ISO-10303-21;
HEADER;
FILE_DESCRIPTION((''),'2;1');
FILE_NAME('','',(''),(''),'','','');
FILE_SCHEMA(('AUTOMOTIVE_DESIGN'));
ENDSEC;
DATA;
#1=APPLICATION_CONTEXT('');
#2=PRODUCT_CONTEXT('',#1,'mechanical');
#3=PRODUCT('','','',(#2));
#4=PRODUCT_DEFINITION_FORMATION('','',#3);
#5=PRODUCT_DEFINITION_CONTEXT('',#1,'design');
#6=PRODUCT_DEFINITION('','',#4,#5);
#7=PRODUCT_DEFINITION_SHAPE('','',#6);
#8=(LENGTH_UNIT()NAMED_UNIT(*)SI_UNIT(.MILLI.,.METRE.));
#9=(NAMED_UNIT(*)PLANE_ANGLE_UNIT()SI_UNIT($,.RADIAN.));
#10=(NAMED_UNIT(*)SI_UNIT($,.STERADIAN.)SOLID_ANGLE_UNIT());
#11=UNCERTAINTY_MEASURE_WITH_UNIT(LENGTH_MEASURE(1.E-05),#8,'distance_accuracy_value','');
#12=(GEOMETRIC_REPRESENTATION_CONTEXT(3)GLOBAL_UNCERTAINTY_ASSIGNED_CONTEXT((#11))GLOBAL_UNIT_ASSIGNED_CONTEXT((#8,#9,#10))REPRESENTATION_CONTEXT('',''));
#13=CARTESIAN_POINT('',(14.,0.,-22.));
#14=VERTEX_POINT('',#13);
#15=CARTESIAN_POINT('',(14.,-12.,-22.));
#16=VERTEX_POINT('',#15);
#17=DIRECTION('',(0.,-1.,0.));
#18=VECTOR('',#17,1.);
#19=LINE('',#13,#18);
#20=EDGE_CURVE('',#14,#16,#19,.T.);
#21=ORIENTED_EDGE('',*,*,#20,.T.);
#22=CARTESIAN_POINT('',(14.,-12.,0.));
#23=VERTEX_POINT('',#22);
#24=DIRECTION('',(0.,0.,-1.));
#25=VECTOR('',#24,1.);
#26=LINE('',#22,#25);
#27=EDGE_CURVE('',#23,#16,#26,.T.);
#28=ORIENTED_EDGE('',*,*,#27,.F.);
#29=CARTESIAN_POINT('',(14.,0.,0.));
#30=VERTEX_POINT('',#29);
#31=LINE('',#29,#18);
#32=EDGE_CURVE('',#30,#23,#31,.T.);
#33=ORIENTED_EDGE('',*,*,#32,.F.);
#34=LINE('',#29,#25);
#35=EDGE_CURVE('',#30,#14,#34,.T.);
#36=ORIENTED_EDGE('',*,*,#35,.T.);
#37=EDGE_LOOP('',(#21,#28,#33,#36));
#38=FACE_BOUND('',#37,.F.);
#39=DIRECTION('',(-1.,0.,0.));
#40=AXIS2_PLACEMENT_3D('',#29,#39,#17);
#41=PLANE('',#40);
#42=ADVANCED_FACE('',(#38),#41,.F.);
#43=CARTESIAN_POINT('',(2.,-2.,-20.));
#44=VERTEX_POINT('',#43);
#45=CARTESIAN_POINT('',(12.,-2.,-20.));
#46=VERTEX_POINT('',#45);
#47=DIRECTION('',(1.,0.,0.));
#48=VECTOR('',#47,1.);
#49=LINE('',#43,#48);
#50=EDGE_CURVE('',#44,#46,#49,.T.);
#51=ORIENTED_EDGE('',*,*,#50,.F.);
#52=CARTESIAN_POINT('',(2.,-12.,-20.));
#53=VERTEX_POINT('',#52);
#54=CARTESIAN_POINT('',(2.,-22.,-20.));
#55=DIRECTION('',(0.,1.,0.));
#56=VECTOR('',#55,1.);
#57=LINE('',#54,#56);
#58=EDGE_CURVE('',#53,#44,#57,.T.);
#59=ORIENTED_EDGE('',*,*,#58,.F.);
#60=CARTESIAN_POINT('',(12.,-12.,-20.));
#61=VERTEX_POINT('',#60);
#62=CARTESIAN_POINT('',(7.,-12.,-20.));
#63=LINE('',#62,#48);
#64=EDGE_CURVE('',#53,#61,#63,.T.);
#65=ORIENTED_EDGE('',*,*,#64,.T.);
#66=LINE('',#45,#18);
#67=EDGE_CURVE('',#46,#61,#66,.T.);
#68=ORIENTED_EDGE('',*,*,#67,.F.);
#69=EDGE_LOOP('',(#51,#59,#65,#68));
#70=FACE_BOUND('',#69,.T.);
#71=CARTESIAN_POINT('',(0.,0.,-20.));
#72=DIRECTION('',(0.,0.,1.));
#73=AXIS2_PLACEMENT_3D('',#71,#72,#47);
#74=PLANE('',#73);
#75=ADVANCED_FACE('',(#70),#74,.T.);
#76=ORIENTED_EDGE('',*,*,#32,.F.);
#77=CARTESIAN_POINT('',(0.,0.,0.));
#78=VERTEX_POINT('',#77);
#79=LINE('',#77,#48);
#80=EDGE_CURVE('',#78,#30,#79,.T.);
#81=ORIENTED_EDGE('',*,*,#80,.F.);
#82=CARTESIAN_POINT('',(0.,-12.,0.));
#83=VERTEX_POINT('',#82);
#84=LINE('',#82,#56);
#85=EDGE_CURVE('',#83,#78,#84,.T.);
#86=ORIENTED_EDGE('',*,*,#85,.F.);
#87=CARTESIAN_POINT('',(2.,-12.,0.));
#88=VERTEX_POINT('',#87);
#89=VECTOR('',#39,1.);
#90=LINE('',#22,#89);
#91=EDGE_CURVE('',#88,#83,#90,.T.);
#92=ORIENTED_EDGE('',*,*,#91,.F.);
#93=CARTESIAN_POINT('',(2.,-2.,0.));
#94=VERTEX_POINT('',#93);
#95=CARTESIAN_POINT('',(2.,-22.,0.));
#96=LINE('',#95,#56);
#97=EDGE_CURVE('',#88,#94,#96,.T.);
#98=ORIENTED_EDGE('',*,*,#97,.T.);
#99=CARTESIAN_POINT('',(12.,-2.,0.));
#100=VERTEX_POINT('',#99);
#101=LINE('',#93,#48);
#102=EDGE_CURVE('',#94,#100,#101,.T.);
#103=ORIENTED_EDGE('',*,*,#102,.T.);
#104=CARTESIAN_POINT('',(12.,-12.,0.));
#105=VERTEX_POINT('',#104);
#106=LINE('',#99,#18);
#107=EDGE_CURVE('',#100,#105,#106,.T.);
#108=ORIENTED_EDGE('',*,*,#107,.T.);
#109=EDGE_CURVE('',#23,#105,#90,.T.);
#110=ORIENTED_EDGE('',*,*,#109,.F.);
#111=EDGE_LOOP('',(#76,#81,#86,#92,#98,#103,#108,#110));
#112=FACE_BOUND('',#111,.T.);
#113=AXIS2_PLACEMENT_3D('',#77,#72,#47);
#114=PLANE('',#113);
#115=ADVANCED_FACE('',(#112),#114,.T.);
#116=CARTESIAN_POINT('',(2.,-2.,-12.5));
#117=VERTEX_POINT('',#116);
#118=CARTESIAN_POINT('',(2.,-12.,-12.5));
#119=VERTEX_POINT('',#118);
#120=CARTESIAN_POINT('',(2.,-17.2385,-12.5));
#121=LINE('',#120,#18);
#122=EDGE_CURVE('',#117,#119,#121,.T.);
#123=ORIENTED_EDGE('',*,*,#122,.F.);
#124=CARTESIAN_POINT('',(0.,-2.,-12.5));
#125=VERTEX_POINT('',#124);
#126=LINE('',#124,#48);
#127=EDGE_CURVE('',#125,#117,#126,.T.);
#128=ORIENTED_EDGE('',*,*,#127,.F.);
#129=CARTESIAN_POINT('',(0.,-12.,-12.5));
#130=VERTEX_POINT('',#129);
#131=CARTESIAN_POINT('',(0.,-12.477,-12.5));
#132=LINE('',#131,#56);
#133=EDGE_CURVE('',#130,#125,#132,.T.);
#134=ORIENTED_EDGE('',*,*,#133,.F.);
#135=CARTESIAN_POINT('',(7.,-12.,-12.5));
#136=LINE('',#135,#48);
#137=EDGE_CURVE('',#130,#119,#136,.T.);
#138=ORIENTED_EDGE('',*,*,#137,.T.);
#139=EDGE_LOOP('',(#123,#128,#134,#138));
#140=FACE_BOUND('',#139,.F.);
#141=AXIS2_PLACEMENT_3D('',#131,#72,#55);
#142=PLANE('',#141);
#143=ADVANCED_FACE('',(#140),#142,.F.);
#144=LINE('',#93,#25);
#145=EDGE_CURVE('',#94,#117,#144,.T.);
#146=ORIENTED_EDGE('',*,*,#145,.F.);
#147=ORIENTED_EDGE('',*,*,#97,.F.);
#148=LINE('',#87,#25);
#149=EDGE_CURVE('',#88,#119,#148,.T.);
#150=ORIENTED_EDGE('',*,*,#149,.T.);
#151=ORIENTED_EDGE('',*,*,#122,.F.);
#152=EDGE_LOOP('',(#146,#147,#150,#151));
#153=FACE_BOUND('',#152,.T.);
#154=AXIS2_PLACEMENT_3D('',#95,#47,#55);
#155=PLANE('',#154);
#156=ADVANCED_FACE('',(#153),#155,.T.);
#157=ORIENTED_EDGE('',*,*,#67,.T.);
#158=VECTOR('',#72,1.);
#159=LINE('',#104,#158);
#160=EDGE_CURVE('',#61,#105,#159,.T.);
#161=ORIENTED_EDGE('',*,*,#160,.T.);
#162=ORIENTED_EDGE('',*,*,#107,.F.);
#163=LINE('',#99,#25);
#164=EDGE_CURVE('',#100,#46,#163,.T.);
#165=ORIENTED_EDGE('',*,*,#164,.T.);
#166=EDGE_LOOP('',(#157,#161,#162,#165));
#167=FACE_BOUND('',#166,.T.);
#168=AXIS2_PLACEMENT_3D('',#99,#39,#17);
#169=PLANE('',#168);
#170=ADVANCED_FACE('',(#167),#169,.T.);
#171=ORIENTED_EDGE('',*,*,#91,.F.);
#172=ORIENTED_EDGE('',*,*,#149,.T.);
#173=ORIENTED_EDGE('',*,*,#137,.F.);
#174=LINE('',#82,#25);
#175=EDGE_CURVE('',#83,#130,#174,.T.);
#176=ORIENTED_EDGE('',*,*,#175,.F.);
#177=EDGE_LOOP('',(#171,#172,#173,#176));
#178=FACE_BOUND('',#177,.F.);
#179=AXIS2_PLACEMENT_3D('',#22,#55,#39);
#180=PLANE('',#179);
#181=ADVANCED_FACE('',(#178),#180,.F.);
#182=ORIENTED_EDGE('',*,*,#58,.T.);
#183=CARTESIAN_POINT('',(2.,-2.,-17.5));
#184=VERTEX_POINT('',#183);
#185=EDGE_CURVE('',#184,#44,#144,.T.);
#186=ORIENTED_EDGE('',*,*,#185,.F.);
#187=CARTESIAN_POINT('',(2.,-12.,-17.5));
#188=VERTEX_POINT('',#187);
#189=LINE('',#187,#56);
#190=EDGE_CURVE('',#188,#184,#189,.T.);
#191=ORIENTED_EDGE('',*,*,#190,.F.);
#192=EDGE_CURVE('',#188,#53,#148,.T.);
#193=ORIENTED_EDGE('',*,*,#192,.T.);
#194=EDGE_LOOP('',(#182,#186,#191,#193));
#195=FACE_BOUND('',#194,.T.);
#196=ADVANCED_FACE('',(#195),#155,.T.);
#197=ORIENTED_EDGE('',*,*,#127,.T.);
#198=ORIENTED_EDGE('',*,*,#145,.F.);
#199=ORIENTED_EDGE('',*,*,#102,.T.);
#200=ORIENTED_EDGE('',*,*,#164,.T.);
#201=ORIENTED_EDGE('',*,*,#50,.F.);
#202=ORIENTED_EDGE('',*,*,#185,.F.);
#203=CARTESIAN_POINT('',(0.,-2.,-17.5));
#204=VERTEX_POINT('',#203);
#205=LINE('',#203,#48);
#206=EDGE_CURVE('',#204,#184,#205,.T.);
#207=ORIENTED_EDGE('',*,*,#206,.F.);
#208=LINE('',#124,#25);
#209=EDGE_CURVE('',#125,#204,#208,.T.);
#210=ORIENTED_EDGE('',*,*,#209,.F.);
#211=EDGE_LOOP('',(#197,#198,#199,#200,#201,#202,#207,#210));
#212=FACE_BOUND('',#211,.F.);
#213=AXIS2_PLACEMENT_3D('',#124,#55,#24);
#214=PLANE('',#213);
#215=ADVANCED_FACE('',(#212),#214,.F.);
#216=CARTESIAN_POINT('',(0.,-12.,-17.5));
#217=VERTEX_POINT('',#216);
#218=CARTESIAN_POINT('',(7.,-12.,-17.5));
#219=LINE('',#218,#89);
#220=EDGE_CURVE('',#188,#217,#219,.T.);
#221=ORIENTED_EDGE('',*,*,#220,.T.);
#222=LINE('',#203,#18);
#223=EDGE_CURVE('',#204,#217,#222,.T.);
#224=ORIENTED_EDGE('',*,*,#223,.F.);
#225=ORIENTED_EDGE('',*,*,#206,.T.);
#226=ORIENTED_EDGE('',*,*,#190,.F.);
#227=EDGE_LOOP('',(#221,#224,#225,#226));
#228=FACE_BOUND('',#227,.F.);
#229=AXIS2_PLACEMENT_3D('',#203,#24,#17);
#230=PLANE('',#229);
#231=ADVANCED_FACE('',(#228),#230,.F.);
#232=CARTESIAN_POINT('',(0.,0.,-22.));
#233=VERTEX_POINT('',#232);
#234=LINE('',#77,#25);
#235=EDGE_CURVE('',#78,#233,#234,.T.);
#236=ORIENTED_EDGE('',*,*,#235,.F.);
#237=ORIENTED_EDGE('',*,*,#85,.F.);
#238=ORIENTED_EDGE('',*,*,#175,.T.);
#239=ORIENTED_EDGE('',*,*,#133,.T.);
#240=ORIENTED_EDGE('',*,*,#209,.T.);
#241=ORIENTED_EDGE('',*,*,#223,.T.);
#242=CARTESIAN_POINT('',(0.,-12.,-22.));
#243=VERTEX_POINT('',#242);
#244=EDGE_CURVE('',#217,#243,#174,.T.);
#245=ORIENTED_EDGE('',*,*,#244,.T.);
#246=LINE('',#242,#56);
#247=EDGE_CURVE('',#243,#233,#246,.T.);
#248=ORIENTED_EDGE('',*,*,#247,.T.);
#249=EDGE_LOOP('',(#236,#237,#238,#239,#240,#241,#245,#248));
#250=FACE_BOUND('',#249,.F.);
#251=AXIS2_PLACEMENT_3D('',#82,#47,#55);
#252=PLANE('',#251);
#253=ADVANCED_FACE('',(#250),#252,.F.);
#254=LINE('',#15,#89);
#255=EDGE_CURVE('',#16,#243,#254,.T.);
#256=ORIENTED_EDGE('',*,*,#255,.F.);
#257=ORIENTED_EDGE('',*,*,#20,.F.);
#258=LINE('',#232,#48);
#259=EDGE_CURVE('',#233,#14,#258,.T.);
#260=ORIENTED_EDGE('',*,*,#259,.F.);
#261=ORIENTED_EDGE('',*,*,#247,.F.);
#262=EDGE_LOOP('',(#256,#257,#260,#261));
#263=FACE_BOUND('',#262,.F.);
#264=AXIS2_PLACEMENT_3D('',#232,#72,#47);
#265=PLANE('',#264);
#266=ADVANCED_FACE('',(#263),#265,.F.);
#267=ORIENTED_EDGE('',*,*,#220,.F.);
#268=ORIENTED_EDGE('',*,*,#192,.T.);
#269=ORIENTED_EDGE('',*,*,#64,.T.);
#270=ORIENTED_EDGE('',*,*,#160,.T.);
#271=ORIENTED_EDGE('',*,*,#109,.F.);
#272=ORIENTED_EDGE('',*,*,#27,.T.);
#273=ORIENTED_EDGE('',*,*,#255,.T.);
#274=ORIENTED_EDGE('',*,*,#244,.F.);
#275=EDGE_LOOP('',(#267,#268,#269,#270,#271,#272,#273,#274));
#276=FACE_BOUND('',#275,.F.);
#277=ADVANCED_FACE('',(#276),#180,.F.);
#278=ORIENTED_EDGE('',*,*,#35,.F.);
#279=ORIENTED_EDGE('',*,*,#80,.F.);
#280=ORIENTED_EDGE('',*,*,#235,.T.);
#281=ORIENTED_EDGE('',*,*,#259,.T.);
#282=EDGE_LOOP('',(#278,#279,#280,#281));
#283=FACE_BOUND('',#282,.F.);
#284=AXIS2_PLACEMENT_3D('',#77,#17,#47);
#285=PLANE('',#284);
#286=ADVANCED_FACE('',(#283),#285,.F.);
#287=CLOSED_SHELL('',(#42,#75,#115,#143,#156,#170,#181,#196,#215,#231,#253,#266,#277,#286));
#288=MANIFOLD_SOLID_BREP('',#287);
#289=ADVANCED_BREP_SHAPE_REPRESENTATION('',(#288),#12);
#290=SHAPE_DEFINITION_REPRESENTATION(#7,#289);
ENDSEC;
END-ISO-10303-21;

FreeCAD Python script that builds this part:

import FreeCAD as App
import Part
import Sketcher
Q = App.Units.Quantity


def add_polygon(sketch, points):
    """Adds a closed chain of lines whose ends are joined by coincident constraints."""
    first, n = sketch.GeometryCount, len(points)
    for a, b in zip(points, points[1:] + points[:1]):
        sketch.addGeometry(Part.LineSegment(App.Vector(*a, 0), App.Vector(*b, 0)), False)
    for i in range(n):
        sketch.addConstraint(Sketcher.Constraint("Coincident", first + i, 2, first + (i + 1) % n, 1))

doc = App.newDocument("Part")
params = doc.addObject("Spreadsheet::Sheet", "Params")
for row, (alias, value) in enumerate([
    ("sketch1_width", "14 mm"),
    ("sketch1_height", "12 mm"),
    ("pad1_length", "22 mm"),
    ("sketch2_width", "10 mm"),
    ("sketch2_height", "20 mm"),
    ("pocket1_length", "20 mm"),
    ("sketch3_height", "5 mm"),
    ("pocket2_length", "10 mm"),
], start=1):
    params.set(f"A{row}", alias)
    params.set(f"B{row}", "=" + value)
    params.setAlias(f"B{row}", alias)

body = doc.addObject("PartDesign::Body", "Body")

sketch1 = body.newObject("Sketcher::SketchObject", "Sketch")
sketch1.AttachmentSupport = (doc.getObject("XY_Plane"), [""])
sketch1.MapMode = "FlatFace"
add_polygon(sketch1, [(14, 0), (0, 0), (0, -12), (14, -12)])
sketch1.addConstraint([
    Sketcher.Constraint("Horizontal", 0),
    Sketcher.Constraint("Vertical", 1),
    Sketcher.Constraint("Horizontal", 2),
    Sketcher.Constraint("Vertical", 3),
    Sketcher.Constraint("Coincident", 0, 2, -1, 1),
    Sketcher.Constraint("DistanceX", 0, 2, 0, 1, Q("14 mm")),
    Sketcher.Constraint("DistanceY", 1, 2, 1, 1, Q("12 mm")),
])
sketch1.setExpression("Constraints[9]", "Params.sketch1_width")
sketch1.setExpression("Constraints[10]", "Params.sketch1_height")
pad1 = body.newObject("PartDesign::Pad", "Pad")
pad1.Profile = sketch1
pad1.setExpression("Length", "Params.pad1_length")
pad1.Reversed = True

sketch2 = body.newObject("Sketcher::SketchObject", "Sketch001")
sketch2.AttachmentSupport = (doc.getObject("XY_Plane"), [""])
sketch2.MapMode = "FlatFace"
add_polygon(sketch2, [(12, -2), (2, -2), (2, -22), (12, -22)])
sketch2.addConstraint([
    Sketcher.Constraint("Horizontal", 0),
    Sketcher.Constraint("Vertical", 1),
    Sketcher.Constraint("Horizontal", 2),
    Sketcher.Constraint("Vertical", 3),
    Sketcher.Constraint("DistanceX", 0, 2, 0, 1, Q("10 mm")),
    Sketcher.Constraint("DistanceY", 1, 2, 1, 1, Q("20 mm")),
    Sketcher.Constraint("DistanceX", -1, 1, 0, 2, Q("2 mm")),
    Sketcher.Constraint("DistanceY", 0, 2, -1, 1, Q("2 mm")),
])
sketch2.setExpression("Constraints[8]", "Params.sketch2_width")
sketch2.setExpression("Constraints[9]", "Params.sketch2_height")
pocket1 = body.newObject("PartDesign::Pocket", "Pocket")
pocket1.Profile = sketch2
pocket1.setExpression("Length", "Params.pocket1_length")

sketch3 = body.newObject("Sketcher::SketchObject", "Sketch002")
sketch3.AttachmentSupport = (doc.getObject("YZ_Plane"), [""])
sketch3.MapMode = "FlatFace"
add_polygon(sketch3, [(-12, -12), (-2, -12), (-2, -18), (-12, -18)])
sketch3.addConstraint([
    Sketcher.Constraint("Horizontal", 0),
    Sketcher.Constraint("Vertical", 1),
    Sketcher.Constraint("Horizontal", 2),
    Sketcher.Constraint("Vertical", 3),
    Sketcher.Constraint("DistanceY", 1, 2, 1, 1, Q("5 mm")),
    Sketcher.Constraint("DistanceX", 0, 2, -1, 1, Q("2 mm")),
    Sketcher.Constraint("DistanceY", 0, 2, -1, 1, Q("12.5 mm")),
    Sketcher.Constraint("DistanceX", 0, 1, 0, 2, Q("10.477 mm")),
])
sketch3.setExpression("Constraints[8]", "Params.sketch3_height")
pocket2 = body.newObject("PartDesign::Pocket", "Pocket001")
pocket2.Profile = sketch3
pocket2.setExpression("Length", "Params.pocket2_length")
pocket2.Reversed = True

doc.recompute()
